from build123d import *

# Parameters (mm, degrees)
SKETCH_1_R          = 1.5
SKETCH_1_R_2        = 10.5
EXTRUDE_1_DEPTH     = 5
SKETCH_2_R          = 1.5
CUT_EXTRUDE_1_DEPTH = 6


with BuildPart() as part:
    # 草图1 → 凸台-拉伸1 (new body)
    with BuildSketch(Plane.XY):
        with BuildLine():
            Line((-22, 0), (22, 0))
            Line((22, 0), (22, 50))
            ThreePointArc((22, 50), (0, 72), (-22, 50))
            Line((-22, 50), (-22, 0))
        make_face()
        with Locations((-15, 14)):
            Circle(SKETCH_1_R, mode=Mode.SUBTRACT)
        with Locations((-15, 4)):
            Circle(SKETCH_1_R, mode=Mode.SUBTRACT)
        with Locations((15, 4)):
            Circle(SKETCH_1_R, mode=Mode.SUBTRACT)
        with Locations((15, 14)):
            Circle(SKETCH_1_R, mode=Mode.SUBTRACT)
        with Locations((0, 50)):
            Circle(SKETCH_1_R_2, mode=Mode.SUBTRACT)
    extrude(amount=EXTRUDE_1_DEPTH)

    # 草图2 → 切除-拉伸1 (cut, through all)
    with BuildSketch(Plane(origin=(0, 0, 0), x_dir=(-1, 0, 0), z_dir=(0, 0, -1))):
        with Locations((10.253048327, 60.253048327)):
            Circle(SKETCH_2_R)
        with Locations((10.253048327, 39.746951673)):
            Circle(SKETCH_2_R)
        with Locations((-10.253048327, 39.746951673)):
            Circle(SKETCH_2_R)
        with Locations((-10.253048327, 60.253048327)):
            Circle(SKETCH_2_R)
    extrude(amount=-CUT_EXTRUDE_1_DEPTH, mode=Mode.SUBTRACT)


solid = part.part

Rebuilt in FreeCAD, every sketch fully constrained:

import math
import FreeCAD as App
import Part
import Sketcher
from FreeCAD import Vector
Q = App.Units.Quantity

doc = App.newDocument("Part")
body = doc.addObject("PartDesign::Body", "Body")

# Sketch on XY plane
sketch1 = doc.addObject("Sketcher::SketchObject", "Sketch")
body.addObject(sketch1)
sketch1.AttachmentSupport = (doc.XY_Plane, [""])
sketch1.MapMode = "FlatFace"
sketch1.addGeometry([
    Part.LineSegment(Vector(-22, 0, 0), Vector(22, 0, 0)),  # 0
    Part.LineSegment(Vector(22, 0, 0), Vector(22, 50, 0)),  # 1
    Part.ArcOfCircle(Part.Circle(Vector(0, 50, 0), Vector(0, 0, 1), 22), math.radians(0), math.radians(180)),  # 2
    Part.LineSegment(Vector(-22, 50, 0), Vector(-22, 0, 0)),  # 3
    Part.Circle(Vector(-15, 4, 0), Vector(0, 0, 1), 1.5),  # 4
    Part.Circle(Vector(-15, 14, 0), Vector(0, 0, 1), 1.5),  # 5
    Part.Circle(Vector(15, 4, 0), Vector(0, 0, 1), 1.5),  # 6
    Part.Circle(Vector(15, 14, 0), Vector(0, 0, 1), 1.5),  # 7
    Part.Circle(Vector(0, 50, 0), Vector(0, 0, 1), 10.5),  # 8
], False)
sketch1.addConstraint([
    Sketcher.Constraint("Coincident", 0, 2, 1, 1),
    Sketcher.Constraint("Tangent", 1, 2, 2, 1),
    Sketcher.Constraint("Tangent", 2, 2, 3, 1),
    Sketcher.Constraint("Coincident", 3, 2, 0, 1),
    Sketcher.Constraint("Horizontal", 0),
    Sketcher.Constraint("Vertical", 1),
    Sketcher.Constraint("Vertical", 3),
    Sketcher.Constraint("Coincident", 8, 3, 2, 3),
    Sketcher.Constraint("Equal", 4, 5),
    Sketcher.Constraint("Equal", 5, 6),
    Sketcher.Constraint("Equal", 6, 7),
    Sketcher.Constraint("Symmetric", 0, 2, 3, 2, -1, 1),
    Sketcher.Constraint("Symmetric", 4, 3, 6, 3, -2),
    Sketcher.Constraint("Symmetric", 5, 3, 7, 3, -2),
    Sketcher.Constraint("Vertical", 4, 3, 5, 3),
    Sketcher.Constraint("Diameter", 4, Q("3 mm")),
    Sketcher.Constraint("Diameter", 8, Q("21 mm")),
    Sketcher.Constraint("Radius", 2, Q("22 mm")),
    Sketcher.Constraint("DistanceY", 1, 1, 1, 2, Q("50 mm")),
    Sketcher.Constraint("DistanceX", 4, 3, -1, 1, Q("15 mm")),
    Sketcher.Constraint("DistanceY", -1, 1, 4, 3, Q("4 mm")),
    Sketcher.Constraint("DistanceY", -1, 1, 5, 3, Q("14 mm")),
])
pad1 = doc.addObject("PartDesign::Pad", "Pad")
body.addObject(pad1)
pad1.Profile = sketch1
pad1.Length = 5

# Sketch on XY plane
sketch2 = doc.addObject("Sketcher::SketchObject", "Sketch001")
body.addObject(sketch2)
sketch2.AttachmentSupport = (doc.XY_Plane, [""])
sketch2.MapMode = "FlatFace"
sketch2.addGeometry([
    Part.Circle(Vector(-10.253048, 60.253048, 0), Vector(0, 0, 1), 1.5),
    Part.Circle(Vector(-10.253048, 39.746952, 0), Vector(0, 0, 1), 1.5),
    Part.Circle(Vector(10.253048, 39.746952, 0), Vector(0, 0, 1), 1.5),
    Part.Circle(Vector(10.253048, 60.253048, 0), Vector(0, 0, 1), 1.5),
], False)
sketch2.addConstraint([
    Sketcher.Constraint("Equal", 0, 1),
    Sketcher.Constraint("Equal", 1, 2),
    Sketcher.Constraint("Equal", 2, 3),
    Sketcher.Constraint("Symmetric", 1, 3, 2, 3, -2),
    Sketcher.Constraint("Symmetric", 0, 3, 3, 3, -2),
    Sketcher.Constraint("Vertical", 0, 3, 1, 3),
    Sketcher.Constraint("Diameter", 0, Q("3 mm")),
    Sketcher.Constraint("DistanceX", 0, 3, -1, 1, Q("10.253048 mm")),
    Sketcher.Constraint("DistanceY", -1, 1, 0, 3, Q("60.253048 mm")),
    Sketcher.Constraint("DistanceY", -1, 1, 1, 3, Q("39.746952 mm")),
])
pocket1 = doc.addObject("PartDesign::Pocket", "Pocket")
body.addObject(pocket1)
pocket1.Profile = sketch2
pocket1.Type = "ThroughAll"
pocket1.Reversed = True

doc.recompute()
